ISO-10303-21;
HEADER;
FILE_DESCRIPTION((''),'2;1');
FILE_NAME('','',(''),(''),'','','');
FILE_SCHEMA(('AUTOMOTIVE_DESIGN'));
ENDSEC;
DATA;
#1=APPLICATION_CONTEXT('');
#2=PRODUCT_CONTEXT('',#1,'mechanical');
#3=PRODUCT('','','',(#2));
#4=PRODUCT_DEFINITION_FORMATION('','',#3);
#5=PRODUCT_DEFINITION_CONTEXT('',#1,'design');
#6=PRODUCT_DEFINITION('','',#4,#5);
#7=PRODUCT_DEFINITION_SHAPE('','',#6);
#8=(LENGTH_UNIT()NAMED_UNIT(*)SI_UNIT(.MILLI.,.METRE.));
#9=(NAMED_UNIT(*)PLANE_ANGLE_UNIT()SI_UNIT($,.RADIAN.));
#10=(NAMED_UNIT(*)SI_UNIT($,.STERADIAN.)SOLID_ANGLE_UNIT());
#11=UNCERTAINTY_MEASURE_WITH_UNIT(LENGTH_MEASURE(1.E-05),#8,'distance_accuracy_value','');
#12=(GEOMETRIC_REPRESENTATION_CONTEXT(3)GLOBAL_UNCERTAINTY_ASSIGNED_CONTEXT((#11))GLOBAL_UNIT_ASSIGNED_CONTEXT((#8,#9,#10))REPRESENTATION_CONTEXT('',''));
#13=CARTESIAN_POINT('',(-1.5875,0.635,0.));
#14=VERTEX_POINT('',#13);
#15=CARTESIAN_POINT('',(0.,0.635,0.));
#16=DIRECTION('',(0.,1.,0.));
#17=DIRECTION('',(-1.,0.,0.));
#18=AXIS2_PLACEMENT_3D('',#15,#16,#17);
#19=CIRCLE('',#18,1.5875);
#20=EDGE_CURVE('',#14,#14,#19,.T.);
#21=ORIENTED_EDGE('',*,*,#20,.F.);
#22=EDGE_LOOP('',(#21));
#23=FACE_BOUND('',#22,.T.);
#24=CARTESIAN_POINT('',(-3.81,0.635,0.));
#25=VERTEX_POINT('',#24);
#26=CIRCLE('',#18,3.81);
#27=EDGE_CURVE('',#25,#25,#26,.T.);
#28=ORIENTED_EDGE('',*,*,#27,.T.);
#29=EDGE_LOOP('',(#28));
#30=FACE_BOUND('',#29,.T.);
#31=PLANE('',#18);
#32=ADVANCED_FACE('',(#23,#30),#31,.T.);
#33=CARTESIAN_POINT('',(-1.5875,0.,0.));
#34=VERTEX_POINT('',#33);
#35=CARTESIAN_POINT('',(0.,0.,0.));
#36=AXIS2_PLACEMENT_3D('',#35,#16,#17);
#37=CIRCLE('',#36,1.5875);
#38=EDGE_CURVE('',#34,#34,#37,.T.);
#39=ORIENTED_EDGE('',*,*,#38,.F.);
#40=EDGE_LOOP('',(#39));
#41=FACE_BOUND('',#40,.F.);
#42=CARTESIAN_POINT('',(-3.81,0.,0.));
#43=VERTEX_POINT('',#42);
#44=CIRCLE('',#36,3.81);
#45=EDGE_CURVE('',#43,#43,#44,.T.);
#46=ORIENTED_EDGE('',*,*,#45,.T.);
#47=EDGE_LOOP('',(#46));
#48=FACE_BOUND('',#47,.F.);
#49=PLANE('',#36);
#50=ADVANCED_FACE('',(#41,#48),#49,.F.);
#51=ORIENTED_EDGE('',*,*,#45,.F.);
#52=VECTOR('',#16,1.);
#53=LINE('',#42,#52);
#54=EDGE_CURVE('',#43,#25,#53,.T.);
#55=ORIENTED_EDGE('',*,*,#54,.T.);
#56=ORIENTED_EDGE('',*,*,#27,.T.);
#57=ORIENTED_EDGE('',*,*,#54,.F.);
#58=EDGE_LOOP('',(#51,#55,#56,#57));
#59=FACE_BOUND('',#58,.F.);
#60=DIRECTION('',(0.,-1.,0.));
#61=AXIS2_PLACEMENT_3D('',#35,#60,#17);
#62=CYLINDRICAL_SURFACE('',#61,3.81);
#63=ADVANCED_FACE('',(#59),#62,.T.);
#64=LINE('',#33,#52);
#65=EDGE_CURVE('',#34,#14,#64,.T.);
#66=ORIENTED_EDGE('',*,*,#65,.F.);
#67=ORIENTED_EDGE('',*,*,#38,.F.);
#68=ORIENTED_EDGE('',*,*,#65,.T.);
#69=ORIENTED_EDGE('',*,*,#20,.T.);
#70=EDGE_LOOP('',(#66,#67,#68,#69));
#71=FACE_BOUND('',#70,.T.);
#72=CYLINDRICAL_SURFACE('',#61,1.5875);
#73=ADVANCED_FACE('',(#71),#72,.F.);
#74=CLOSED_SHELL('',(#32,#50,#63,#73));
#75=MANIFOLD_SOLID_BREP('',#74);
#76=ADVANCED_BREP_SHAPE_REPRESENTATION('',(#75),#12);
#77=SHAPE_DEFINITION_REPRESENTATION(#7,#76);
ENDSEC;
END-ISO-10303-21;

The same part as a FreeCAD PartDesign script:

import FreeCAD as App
import Part
import Sketcher
Q = App.Units.Quantity

doc = App.newDocument("Part")
params = doc.addObject("Spreadsheet::Sheet", "Params")
for row, (alias, value) in enumerate([
    ("sketch1_diameter", "0.3 in"),
    ("sketch1_diameter2", "0.125 in"),
    ("pad1_length", "0.025 in"),
], start=1):
    params.set(f"A{row}", alias)
    params.set(f"B{row}", "=" + value)
    params.setAlias(f"B{row}", alias)

body = doc.addObject("PartDesign::Body", "Body")

sketch1 = doc.addObject("Sketcher::SketchObject", "Sketch")
body.addObject(sketch1)
sketch1.AttachmentSupport = (doc.XZ_Plane, [""])
sketch1.MapMode = "FlatFace"
sketch1.addGeometry([
    Part.Circle(App.Vector(0, 0, 0), App.Vector(0, 0, 1), 3.81),
    Part.Circle(App.Vector(0, 0, 0), App.Vector(0, 0, 1), 1.5875),
], False)
sketch1.addConstraint([
    Sketcher.Constraint("Coincident", 0, 3, -1, 1),
    Sketcher.Constraint("Coincident", 1, 3, -1, 1),
    Sketcher.Constraint("Diameter", 0, Q("0.3 in")),
    Sketcher.Constraint("Diameter", 1, Q("0.125 in")),
])
sketch1.setExpression("Constraints[2]", "Params.sketch1_diameter")
sketch1.setExpression("Constraints[3]", "Params.sketch1_diameter2")
pad1 = doc.addObject("PartDesign::Pad", "Pad")
body.addObject(pad1)
pad1.Profile = sketch1
pad1.setExpression("Length", "Params.pad1_length")
pad1.Reversed = True

doc.recompute()
